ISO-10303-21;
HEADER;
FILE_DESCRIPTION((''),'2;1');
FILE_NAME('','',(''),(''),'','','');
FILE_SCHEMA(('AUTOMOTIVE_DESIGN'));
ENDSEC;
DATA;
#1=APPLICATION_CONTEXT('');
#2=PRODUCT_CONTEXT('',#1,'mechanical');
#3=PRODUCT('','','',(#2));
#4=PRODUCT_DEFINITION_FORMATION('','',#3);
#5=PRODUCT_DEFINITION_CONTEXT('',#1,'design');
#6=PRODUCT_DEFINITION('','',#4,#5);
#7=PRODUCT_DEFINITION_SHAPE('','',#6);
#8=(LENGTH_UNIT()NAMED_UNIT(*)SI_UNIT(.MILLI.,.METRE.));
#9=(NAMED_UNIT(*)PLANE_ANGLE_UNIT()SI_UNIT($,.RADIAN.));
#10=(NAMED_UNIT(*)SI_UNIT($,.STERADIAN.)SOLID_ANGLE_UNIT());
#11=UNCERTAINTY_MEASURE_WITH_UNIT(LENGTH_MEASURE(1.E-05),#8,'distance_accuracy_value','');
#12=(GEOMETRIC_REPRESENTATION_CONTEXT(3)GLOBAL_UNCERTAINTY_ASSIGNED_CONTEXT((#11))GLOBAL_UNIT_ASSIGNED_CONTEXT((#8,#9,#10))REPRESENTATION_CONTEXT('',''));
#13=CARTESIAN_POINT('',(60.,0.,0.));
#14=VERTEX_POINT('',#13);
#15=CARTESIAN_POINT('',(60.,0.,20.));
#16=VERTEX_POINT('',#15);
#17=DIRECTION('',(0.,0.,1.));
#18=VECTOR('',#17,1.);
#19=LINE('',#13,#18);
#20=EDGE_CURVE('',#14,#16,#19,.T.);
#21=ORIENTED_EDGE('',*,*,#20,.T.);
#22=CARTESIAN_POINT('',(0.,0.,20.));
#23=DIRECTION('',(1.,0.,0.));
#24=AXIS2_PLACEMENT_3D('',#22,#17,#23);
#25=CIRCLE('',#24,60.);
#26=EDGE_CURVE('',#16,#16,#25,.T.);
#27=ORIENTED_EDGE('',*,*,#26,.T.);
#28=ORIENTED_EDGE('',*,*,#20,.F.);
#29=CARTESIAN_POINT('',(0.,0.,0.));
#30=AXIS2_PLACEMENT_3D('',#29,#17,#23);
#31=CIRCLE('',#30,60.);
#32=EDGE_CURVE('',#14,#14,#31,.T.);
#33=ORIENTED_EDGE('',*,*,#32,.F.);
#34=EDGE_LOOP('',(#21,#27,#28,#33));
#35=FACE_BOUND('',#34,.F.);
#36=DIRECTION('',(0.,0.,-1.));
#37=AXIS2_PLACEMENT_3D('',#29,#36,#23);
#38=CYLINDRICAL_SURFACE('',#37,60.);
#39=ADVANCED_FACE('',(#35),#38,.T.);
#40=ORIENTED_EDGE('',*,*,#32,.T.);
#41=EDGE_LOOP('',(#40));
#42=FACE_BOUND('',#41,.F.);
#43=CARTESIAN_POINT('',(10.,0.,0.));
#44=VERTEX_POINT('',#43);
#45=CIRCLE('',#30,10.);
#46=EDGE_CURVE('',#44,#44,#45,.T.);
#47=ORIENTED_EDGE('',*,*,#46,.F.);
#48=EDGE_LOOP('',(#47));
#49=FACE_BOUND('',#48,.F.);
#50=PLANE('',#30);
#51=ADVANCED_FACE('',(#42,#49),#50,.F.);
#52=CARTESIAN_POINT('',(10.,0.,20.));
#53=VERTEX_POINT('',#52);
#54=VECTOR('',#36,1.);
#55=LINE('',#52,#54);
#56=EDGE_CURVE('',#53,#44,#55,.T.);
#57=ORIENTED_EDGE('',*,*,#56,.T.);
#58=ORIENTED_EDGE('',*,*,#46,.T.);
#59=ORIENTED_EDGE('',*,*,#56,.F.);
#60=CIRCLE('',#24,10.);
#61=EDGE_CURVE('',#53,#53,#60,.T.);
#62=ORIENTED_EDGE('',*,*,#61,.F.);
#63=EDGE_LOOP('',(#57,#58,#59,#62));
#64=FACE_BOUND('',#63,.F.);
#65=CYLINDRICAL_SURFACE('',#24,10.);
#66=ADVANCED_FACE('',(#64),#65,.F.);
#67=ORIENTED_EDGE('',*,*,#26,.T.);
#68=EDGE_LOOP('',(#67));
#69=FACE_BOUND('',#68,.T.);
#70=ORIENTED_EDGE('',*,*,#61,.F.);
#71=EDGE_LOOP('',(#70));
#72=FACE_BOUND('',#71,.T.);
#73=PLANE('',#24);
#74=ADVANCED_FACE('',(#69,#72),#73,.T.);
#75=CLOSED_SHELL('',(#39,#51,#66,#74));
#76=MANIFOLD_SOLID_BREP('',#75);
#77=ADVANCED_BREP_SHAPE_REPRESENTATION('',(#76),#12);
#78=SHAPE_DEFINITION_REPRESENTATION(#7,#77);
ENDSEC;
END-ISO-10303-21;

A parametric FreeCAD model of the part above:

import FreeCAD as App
import Part
import Sketcher
from FreeCAD import Vector

doc = App.newDocument("Part")
body = doc.addObject("PartDesign::Body", "Body")

# Sketch on XY plane
sketch1 = body.newObject("Sketcher::SketchObject", "Sketch")
sketch1.AttachmentSupport = (doc.getObject("XY_Plane"), [""])
sketch1.MapMode = "FlatFace"
sketch1.addGeometry(Part.Circle(Vector(0, 0, 0), Vector(0, 0, 1), 60), False)
sketch1.addConstraint(Sketcher.Constraint("Coincident", 0, 3, -1, 1))
sketch1.addConstraint(Sketcher.Constraint("Diameter", 0, 120.0))
pad1 = body.newObject("PartDesign::Pad", "Pad")
pad1.Profile = sketch1
pad1.Length = 20

# Sketch on XY plane
sketch2 = body.newObject("Sketcher::SketchObject", "Sketch001")
sketch2.AttachmentSupport = (doc.getObject("XY_Plane"), [""])
sketch2.MapMode = "FlatFace"
sketch2.AttachmentOffset = App.Placement(Vector(0, 0, 20), App.Rotation())
sketch2.addGeometry(Part.Circle(Vector(0, 0, 0), Vector(0, 0, 1), 10), False)
sketch2.addConstraint(Sketcher.Constraint("Coincident", 0, 3, -1, 1))
sketch2.addConstraint(Sketcher.Constraint("Diameter", 0, 20.0))
pocket1 = body.newObject("PartDesign::Pocket", "Pocket")
pocket1.Profile = sketch2
pocket1.Type = "ThroughAll"

doc.recompute()
